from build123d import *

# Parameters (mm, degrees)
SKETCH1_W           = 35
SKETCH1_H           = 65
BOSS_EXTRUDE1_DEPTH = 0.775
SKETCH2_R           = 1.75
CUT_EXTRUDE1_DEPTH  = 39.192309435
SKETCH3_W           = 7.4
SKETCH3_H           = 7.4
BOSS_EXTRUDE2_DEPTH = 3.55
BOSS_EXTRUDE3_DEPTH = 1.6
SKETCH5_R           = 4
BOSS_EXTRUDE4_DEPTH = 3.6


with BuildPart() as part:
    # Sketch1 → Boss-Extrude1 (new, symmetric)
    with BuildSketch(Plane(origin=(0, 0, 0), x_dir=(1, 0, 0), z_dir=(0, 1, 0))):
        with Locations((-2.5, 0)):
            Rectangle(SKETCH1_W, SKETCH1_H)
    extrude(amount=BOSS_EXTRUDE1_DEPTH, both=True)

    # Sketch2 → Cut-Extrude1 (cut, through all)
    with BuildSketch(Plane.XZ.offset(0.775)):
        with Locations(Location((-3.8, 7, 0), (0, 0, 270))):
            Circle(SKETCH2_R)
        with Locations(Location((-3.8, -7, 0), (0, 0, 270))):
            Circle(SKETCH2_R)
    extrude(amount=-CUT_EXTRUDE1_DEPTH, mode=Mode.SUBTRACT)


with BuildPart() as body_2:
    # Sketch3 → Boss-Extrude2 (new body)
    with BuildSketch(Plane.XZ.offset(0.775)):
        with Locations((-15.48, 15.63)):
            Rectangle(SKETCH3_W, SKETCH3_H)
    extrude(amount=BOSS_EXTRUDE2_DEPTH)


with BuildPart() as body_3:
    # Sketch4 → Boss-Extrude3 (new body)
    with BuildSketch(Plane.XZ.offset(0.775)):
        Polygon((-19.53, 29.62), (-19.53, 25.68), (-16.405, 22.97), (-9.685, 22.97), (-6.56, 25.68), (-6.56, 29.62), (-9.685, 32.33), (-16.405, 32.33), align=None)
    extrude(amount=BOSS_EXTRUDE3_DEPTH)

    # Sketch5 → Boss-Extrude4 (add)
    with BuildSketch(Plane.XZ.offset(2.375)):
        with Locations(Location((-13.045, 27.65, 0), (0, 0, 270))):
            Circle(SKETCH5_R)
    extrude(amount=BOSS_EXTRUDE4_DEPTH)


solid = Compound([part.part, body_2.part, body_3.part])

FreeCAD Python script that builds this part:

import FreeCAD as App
import Part
import Sketcher

V = App.Vector
Q = App.Units.Quantity

doc = App.newDocument("Part")
body = doc.addObject("PartDesign::Body", "Body")

sketch1 = doc.addObject("Sketcher::SketchObject", "Sketch")
body.addObject(sketch1)
sketch1.AttachmentSupport = (doc.XZ_Plane, [""])
sketch1.MapMode = "FlatFace"
sketch1.addGeometry([
    Part.LineSegment(V(-20, -32, 0), V(-20, 32, 0)),
    Part.LineSegment(V(-20, 32, 0), V(15, 32, 0)),
    Part.LineSegment(V(15, 32, 0), V(15, -32, 0)),
    Part.LineSegment(V(15, -32, 0), V(-20, -32, 0)),
], False)
sketch1.addConstraint([
    Sketcher.Constraint("Coincident", 0, 2, 1, 1),
    Sketcher.Constraint("Coincident", 1, 2, 2, 1),
    Sketcher.Constraint("Coincident", 2, 2, 3, 1),
    Sketcher.Constraint("Coincident", 3, 2, 0, 1),
    Sketcher.Constraint("Vertical", 0),
    Sketcher.Constraint("Horizontal", 1),
    Sketcher.Constraint("Vertical", 2),
    Sketcher.Constraint("Horizontal", 3),
    Sketcher.Constraint("DistanceX", 1, 1, 1, 2, Q("35 mm")),
    Sketcher.Constraint("DistanceY", 0, 1, 0, 2, Q("65 mm")),
    Sketcher.Constraint("DistanceX", 0, 2, -1, 1, Q("20 mm")),
    Sketcher.Constraint("DistanceY", -1, 1, 0, 2, Q("32.5 mm")),
])
pad1 = doc.addObject("PartDesign::Pad", "Pad")
body.addObject(pad1)
pad1.Profile = sketch1
pad1.Length = 1.55
pad1.Midplane = True

sketch2 = doc.addObject("Sketcher::SketchObject", "Sketch001")
body.addObject(sketch2)
sketch2.AttachmentSupport = (doc.XZ_Plane, [""])
sketch2.MapMode = "FlatFace"
sketch2.AttachmentOffset = App.Placement(V(0, 0, 0.775), App.Rotation())
sketch2.addGeometry([
    Part.Circle(V(-3.8, 7, 0), V(0, 0, 1), 1.8),
    Part.Circle(V(-3.8, -7, 0), V(0, 0, 1), 1.8),
], False)
sketch2.addConstraint([
    Sketcher.Constraint("Equal", 0, 1),
    Sketcher.Constraint("Symmetric", 0, 3, 1, 3, -1),
    Sketcher.Constraint("Diameter", 0, Q("3.5 mm")),
    Sketcher.Constraint("DistanceY", -1, 1, 0, 3, Q("7 mm")),
    Sketcher.Constraint("DistanceX", 0, 3, -1, 1, Q("3.8 mm")),
])
pocket1 = doc.addObject("PartDesign::Pocket", "Pocket")
body.addObject(pocket1)
pocket1.Profile = sketch2
pocket1.Type = "ThroughAll"
body2 = doc.addObject("PartDesign::Body", "Body001")

sketch3 = doc.addObject("Sketcher::SketchObject", "Sketch002")
body2.addObject(sketch3)
sketch3.AttachmentSupport = (doc.getObject("XZ_Plane001"), [""])
sketch3.MapMode = "FlatFace"
sketch3.AttachmentOffset = App.Placement(V(0, 0, 0.775), App.Rotation())
sketch3.addGeometry([
    Part.LineSegment(V(-19, 19, 0), V(-19, 12, 0)),
    Part.LineSegment(V(-19, 12, 0), V(-12, 12, 0)),
    Part.LineSegment(V(-12, 12, 0), V(-12, 19, 0)),
    Part.LineSegment(V(-12, 19, 0), V(-19, 19, 0)),
], False)
sketch3.addConstraint([
    Sketcher.Constraint("Coincident", 0, 2, 1, 1),
    Sketcher.Constraint("Coincident", 1, 2, 2, 1),
    Sketcher.Constraint("Coincident", 2, 2, 3, 1),
    Sketcher.Constraint("Coincident", 3, 2, 0, 1),
    Sketcher.Constraint("Vertical", 0),
    Sketcher.Constraint("Horizontal", 1),
    Sketcher.Constraint("Vertical", 2),
    Sketcher.Constraint("Horizontal", 3),
    Sketcher.Constraint("Equal", 3, 0),
    Sketcher.Constraint("DistanceX", 1, 1, 1, 2, Q("7.4 mm")),
    Sketcher.Constraint("DistanceX", 0, 2, -1, 1, Q("19.18 mm")),
    Sketcher.Constraint("DistanceY", -1, 1, 0, 2, Q("11.93 mm")),
])
pad2 = doc.addObject("PartDesign::Pad", "Pad001")
body2.addObject(pad2)
pad2.Profile = sketch3
pad2.Length = 3.55
body3 = doc.addObject("PartDesign::Body", "Body002")

sketch4 = doc.addObject("Sketcher::SketchObject", "Sketch003")
body3.addObject(sketch4)
sketch4.AttachmentSupport = (doc.getObject("XZ_Plane002"), [""])
sketch4.MapMode = "FlatFace"
sketch4.AttachmentOffset = App.Placement(V(0, 0, 0.775), App.Rotation())
sketch4.addGeometry([
    Part.LineSegment(V(-19.5, 29.6, 0), V(-19.5, 25.7, 0)),
    Part.LineSegment(V(-19.5, 25.7, 0), V(-16.4, 23, 0)),
    Part.LineSegment(V(-16.4, 23, 0), V(-9.7, 23, 0)),
    Part.LineSegment(V(-9.7, 23, 0), V(-6.6, 25.7, 0)),
    Part.LineSegment(V(-6.6, 25.7, 0), V(-6.6, 29.6, 0)),
    Part.LineSegment(V(-6.6, 29.6, 0), V(-9.7, 32.3, 0)),
    Part.LineSegment(V(-9.7, 32.3, 0), V(-16.4, 32.3, 0)),
    Part.LineSegment(V(-16.4, 32.3, 0), V(-19.5, 29.6, 0)),
], False)
sketch4.addConstraint([
    Sketcher.Constraint("Coincident", 0, 2, 1, 1),
    Sketcher.Constraint("Coincident", 1, 2, 2, 1),
    Sketcher.Constraint("Coincident", 2, 2, 3, 1),
    Sketcher.Constraint("Coincident", 3, 2, 4, 1),
    Sketcher.Constraint("Coincident", 4, 2, 5, 1),
    Sketcher.Constraint("Coincident", 5, 2, 6, 1),
    Sketcher.Constraint("Coincident", 6, 2, 7, 1),
    Sketcher.Constraint("Coincident", 7, 2, 0, 1),
    Sketcher.Constraint("Vertical", 0),
    Sketcher.Constraint("Horizontal", 2),
    Sketcher.Constraint("Vertical", 4),
    Sketcher.Constraint("Horizontal", 6),
    Sketcher.Constraint("Parallel", 1, 5),
    Sketcher.Constraint("Parallel", 3, 7),
    Sketcher.Constraint("Horizontal", 0, 2, 3, 2),
    Sketcher.Constraint("Horizontal", 4, 2, 7, 2),
    Sketcher.Constraint("Vertical", 2, 2, 5, 2),
    Sketcher.Constraint("Vertical", 1, 2, 6, 2),
    Sketcher.Constraint("DistanceX", 2, 1, 2, 2, Q("6.72 mm")),
    Sketcher.Constraint("DistanceY", 0, 2, 0, 1, Q("3.94 mm")),
    Sketcher.Constraint("DistanceX", 0, 2, -1, 1, Q("19.53 mm")),
    Sketcher.Constraint("DistanceY", -1, 1, 0, 2, Q("25.68 mm")),
    Sketcher.Constraint("DistanceY", -1, 1, 1, 2, Q("22.97 mm")),
    Sketcher.Constraint("DistanceX", 3, 2, -1, 1, Q("6.56 mm")),
])
pad3 = doc.addObject("PartDesign::Pad", "Pad002")
body3.addObject(pad3)
pad3.Profile = sketch4
pad3.Length = 1.6

sketch5 = doc.addObject("Sketcher::SketchObject", "Sketch004")
body3.addObject(sketch5)
sketch5.AttachmentSupport = (doc.getObject("XZ_Plane002"), [""])
sketch5.MapMode = "FlatFace"
sketch5.AttachmentOffset = App.Placement(V(0, 0, 2.375), App.Rotation())
sketch5.addGeometry(Part.Circle(V(-13, 27.6, 0), V(0, 0, 1), 4), False)
sketch5.addConstraint([
    Sketcher.Constraint("Diameter", 0, Q("8 mm")),
    Sketcher.Constraint("DistanceY", -1, 1, 0, 3, Q("27.65 mm")),
    Sketcher.Constraint("DistanceX", 0, 3, -1, 1, Q("13.045 mm")),
])
pad4 = doc.addObject("PartDesign::Pad", "Pad003")
body3.addObject(pad4)
pad4.Profile = sketch5
pad4.Length = 3.6

doc.recompute()
